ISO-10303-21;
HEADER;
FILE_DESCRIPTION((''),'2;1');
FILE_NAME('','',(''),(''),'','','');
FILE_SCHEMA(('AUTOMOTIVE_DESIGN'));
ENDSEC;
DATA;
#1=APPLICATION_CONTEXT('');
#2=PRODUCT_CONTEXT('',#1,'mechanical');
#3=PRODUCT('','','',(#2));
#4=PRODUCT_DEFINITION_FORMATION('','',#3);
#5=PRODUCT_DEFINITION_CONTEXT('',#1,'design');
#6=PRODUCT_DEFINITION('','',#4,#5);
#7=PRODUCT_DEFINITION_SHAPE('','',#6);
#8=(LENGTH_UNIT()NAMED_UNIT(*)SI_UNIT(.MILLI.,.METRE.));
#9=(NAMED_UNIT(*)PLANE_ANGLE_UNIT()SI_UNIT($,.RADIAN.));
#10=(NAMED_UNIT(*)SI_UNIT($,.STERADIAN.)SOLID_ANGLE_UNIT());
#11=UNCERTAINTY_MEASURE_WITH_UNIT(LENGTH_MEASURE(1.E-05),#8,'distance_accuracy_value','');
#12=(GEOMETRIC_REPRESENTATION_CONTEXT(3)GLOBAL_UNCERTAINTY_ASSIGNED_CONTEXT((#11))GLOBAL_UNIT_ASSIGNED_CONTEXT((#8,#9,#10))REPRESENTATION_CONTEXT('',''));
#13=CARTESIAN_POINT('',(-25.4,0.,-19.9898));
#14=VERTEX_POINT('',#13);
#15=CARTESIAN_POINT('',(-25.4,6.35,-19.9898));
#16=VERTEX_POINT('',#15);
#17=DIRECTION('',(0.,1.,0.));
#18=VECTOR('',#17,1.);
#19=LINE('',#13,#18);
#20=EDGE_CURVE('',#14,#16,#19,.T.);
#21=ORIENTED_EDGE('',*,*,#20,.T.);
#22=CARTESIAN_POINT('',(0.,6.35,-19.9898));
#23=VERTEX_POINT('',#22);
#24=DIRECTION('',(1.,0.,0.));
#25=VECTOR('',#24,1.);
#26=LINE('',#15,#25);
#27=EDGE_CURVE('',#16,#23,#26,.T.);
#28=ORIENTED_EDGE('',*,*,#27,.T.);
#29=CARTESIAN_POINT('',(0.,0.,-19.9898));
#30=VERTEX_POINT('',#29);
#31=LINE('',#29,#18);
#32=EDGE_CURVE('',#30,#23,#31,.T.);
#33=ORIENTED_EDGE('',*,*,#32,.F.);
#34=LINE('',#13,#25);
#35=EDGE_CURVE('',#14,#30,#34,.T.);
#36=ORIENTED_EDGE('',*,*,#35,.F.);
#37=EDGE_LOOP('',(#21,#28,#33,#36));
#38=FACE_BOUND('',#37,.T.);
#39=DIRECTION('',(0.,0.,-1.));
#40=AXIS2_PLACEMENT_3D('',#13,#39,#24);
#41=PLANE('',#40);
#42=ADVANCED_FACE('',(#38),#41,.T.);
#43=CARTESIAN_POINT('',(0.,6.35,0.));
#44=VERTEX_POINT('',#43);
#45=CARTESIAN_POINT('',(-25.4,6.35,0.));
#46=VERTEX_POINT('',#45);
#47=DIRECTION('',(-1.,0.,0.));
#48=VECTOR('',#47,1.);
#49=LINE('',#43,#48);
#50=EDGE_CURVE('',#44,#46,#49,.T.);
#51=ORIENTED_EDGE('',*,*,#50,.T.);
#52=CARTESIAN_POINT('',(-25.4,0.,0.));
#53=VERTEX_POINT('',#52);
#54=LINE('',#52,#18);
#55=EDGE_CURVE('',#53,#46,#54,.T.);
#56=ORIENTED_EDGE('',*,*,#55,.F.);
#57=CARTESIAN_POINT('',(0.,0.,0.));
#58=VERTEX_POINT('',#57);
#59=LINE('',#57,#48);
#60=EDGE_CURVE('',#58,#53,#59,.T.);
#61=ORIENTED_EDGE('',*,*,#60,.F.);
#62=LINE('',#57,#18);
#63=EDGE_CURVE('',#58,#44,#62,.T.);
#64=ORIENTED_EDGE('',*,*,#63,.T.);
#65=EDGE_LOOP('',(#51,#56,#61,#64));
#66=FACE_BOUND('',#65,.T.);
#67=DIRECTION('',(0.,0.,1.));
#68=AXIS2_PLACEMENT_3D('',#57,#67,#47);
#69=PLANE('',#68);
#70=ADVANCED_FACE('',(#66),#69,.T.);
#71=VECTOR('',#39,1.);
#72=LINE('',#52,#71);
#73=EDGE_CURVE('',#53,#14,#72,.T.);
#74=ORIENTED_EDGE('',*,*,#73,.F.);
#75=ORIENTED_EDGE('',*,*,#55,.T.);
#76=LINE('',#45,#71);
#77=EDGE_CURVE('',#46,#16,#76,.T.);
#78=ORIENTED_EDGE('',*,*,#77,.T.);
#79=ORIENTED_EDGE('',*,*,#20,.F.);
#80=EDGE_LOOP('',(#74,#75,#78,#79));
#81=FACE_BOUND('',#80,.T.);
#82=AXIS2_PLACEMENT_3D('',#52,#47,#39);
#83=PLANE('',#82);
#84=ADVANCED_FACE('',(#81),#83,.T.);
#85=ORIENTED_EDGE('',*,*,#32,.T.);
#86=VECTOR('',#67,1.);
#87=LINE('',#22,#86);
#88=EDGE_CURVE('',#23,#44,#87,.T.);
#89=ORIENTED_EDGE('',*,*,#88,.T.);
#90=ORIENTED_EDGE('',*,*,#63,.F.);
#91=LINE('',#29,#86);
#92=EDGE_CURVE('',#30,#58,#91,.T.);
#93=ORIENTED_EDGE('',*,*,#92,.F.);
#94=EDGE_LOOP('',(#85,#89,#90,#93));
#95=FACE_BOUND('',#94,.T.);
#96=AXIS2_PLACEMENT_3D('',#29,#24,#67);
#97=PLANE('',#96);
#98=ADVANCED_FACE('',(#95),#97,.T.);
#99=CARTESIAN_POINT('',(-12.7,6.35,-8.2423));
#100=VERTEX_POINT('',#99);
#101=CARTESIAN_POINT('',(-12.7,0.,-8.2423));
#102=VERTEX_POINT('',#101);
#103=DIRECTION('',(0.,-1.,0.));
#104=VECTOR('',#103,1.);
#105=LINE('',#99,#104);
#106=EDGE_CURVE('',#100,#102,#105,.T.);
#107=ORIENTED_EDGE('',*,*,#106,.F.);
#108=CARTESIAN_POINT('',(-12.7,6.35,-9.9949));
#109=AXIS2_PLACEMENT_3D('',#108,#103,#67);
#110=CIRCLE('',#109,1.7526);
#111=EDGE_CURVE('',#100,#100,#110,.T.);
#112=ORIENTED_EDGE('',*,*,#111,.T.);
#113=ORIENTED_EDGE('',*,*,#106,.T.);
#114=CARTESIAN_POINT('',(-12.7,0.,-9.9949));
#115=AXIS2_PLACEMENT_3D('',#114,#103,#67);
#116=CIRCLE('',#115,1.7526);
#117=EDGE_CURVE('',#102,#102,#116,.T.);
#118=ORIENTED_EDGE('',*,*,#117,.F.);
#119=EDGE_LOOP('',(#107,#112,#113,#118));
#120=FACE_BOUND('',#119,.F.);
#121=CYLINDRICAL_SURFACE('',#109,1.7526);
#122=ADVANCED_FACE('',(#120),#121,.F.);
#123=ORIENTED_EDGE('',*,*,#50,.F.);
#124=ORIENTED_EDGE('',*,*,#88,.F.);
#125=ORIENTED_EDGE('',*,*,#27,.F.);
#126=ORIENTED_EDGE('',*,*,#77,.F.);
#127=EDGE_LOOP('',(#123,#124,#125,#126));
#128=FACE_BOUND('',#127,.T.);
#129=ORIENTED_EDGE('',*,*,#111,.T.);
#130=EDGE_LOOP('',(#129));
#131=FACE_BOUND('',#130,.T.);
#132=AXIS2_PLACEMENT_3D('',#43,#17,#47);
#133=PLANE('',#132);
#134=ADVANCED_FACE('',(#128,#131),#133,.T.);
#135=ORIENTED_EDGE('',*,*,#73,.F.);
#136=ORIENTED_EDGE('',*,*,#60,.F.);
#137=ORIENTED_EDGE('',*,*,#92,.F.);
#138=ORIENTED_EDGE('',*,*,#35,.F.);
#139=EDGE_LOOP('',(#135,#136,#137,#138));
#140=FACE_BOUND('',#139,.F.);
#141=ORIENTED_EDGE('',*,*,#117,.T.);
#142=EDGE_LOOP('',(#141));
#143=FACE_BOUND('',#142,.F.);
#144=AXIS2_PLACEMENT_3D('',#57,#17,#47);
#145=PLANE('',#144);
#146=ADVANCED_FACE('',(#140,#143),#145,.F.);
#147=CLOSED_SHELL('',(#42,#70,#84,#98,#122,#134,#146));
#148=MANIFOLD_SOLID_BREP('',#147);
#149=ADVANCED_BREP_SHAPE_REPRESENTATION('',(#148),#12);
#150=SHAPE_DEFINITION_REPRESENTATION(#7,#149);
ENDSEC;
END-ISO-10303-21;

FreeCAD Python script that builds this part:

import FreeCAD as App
import Part
import Sketcher
from FreeCAD import Vector
Q = App.Units.Quantity


def add_polygon(sketch, points):
    """Adds a closed chain of lines whose ends are joined by coincident constraints."""
    first, n = sketch.GeometryCount, len(points)
    for a, b in zip(points, points[1:] + points[:1]):
        sketch.addGeometry(Part.LineSegment(App.Vector(*a, 0), App.Vector(*b, 0)), False)
    for i in range(n):
        sketch.addConstraint(Sketcher.Constraint("Coincident", first + i, 2, first + (i + 1) % n, 1))

doc = App.newDocument("Part")
body = doc.addObject("PartDesign::Body", "Body")

# Sketch on XZ plane
sketch1 = body.newObject("Sketcher::SketchObject", "Sketch")
sketch1.AttachmentSupport = (doc.getObject("XZ_Plane"), [""])
sketch1.MapMode = "FlatFace"
add_polygon(sketch1, [(-25, 0), (0, 0), (0, -20), (-25, -20)])  # lines 0-3
sketch1.addConstraint([
    Sketcher.Constraint("Horizontal", 0),
    Sketcher.Constraint("Vertical", 1),
    Sketcher.Constraint("Horizontal", 2),
    Sketcher.Constraint("Vertical", 3),
    Sketcher.Constraint("Coincident", 0, 2, -1, 1),
    Sketcher.Constraint("DistanceX", 0, 1, 0, 2, Q("1 in")),
    Sketcher.Constraint("DistanceY", 1, 2, 1, 1, Q("0.787 in")),
])
pad1 = body.newObject("PartDesign::Pad", "Pad")
pad1.Profile = sketch1
pad1.Length = Q("0.25 in")
pad1.Reversed = True

# Sketch on XZ plane
sketch2 = body.newObject("Sketcher::SketchObject", "Sketch001")
sketch2.AttachmentSupport = (doc.getObject("XZ_Plane"), [""])
sketch2.MapMode = "FlatFace"
sketch2.AttachmentOffset = App.Placement(Vector(0, 0, -0.25 * 25.4), App.Rotation())
sketch2.addGeometry(Part.Circle(Vector(-12.7, -10, 0), Vector(0, 0, 1), 1.8), False)
sketch2.addConstraint([
    Sketcher.Constraint("Diameter", 0, Q("0.138 in")),
    Sketcher.Constraint("DistanceX", 0, 3, -1, 1, Q("0.5 in")),
    Sketcher.Constraint("DistanceY", 0, 3, -1, 1, Q("0.3935 in")),
])
doc.recompute()
hole = body.newObject("PartDesign::Hole", "Hole")
hole.Profile = sketch2
hole.ThreadType = "None"
hole.Diameter = Q("0.138 in")
hole.DepthType = "ThroughAll"
hole.Reversed = True

doc.recompute()
